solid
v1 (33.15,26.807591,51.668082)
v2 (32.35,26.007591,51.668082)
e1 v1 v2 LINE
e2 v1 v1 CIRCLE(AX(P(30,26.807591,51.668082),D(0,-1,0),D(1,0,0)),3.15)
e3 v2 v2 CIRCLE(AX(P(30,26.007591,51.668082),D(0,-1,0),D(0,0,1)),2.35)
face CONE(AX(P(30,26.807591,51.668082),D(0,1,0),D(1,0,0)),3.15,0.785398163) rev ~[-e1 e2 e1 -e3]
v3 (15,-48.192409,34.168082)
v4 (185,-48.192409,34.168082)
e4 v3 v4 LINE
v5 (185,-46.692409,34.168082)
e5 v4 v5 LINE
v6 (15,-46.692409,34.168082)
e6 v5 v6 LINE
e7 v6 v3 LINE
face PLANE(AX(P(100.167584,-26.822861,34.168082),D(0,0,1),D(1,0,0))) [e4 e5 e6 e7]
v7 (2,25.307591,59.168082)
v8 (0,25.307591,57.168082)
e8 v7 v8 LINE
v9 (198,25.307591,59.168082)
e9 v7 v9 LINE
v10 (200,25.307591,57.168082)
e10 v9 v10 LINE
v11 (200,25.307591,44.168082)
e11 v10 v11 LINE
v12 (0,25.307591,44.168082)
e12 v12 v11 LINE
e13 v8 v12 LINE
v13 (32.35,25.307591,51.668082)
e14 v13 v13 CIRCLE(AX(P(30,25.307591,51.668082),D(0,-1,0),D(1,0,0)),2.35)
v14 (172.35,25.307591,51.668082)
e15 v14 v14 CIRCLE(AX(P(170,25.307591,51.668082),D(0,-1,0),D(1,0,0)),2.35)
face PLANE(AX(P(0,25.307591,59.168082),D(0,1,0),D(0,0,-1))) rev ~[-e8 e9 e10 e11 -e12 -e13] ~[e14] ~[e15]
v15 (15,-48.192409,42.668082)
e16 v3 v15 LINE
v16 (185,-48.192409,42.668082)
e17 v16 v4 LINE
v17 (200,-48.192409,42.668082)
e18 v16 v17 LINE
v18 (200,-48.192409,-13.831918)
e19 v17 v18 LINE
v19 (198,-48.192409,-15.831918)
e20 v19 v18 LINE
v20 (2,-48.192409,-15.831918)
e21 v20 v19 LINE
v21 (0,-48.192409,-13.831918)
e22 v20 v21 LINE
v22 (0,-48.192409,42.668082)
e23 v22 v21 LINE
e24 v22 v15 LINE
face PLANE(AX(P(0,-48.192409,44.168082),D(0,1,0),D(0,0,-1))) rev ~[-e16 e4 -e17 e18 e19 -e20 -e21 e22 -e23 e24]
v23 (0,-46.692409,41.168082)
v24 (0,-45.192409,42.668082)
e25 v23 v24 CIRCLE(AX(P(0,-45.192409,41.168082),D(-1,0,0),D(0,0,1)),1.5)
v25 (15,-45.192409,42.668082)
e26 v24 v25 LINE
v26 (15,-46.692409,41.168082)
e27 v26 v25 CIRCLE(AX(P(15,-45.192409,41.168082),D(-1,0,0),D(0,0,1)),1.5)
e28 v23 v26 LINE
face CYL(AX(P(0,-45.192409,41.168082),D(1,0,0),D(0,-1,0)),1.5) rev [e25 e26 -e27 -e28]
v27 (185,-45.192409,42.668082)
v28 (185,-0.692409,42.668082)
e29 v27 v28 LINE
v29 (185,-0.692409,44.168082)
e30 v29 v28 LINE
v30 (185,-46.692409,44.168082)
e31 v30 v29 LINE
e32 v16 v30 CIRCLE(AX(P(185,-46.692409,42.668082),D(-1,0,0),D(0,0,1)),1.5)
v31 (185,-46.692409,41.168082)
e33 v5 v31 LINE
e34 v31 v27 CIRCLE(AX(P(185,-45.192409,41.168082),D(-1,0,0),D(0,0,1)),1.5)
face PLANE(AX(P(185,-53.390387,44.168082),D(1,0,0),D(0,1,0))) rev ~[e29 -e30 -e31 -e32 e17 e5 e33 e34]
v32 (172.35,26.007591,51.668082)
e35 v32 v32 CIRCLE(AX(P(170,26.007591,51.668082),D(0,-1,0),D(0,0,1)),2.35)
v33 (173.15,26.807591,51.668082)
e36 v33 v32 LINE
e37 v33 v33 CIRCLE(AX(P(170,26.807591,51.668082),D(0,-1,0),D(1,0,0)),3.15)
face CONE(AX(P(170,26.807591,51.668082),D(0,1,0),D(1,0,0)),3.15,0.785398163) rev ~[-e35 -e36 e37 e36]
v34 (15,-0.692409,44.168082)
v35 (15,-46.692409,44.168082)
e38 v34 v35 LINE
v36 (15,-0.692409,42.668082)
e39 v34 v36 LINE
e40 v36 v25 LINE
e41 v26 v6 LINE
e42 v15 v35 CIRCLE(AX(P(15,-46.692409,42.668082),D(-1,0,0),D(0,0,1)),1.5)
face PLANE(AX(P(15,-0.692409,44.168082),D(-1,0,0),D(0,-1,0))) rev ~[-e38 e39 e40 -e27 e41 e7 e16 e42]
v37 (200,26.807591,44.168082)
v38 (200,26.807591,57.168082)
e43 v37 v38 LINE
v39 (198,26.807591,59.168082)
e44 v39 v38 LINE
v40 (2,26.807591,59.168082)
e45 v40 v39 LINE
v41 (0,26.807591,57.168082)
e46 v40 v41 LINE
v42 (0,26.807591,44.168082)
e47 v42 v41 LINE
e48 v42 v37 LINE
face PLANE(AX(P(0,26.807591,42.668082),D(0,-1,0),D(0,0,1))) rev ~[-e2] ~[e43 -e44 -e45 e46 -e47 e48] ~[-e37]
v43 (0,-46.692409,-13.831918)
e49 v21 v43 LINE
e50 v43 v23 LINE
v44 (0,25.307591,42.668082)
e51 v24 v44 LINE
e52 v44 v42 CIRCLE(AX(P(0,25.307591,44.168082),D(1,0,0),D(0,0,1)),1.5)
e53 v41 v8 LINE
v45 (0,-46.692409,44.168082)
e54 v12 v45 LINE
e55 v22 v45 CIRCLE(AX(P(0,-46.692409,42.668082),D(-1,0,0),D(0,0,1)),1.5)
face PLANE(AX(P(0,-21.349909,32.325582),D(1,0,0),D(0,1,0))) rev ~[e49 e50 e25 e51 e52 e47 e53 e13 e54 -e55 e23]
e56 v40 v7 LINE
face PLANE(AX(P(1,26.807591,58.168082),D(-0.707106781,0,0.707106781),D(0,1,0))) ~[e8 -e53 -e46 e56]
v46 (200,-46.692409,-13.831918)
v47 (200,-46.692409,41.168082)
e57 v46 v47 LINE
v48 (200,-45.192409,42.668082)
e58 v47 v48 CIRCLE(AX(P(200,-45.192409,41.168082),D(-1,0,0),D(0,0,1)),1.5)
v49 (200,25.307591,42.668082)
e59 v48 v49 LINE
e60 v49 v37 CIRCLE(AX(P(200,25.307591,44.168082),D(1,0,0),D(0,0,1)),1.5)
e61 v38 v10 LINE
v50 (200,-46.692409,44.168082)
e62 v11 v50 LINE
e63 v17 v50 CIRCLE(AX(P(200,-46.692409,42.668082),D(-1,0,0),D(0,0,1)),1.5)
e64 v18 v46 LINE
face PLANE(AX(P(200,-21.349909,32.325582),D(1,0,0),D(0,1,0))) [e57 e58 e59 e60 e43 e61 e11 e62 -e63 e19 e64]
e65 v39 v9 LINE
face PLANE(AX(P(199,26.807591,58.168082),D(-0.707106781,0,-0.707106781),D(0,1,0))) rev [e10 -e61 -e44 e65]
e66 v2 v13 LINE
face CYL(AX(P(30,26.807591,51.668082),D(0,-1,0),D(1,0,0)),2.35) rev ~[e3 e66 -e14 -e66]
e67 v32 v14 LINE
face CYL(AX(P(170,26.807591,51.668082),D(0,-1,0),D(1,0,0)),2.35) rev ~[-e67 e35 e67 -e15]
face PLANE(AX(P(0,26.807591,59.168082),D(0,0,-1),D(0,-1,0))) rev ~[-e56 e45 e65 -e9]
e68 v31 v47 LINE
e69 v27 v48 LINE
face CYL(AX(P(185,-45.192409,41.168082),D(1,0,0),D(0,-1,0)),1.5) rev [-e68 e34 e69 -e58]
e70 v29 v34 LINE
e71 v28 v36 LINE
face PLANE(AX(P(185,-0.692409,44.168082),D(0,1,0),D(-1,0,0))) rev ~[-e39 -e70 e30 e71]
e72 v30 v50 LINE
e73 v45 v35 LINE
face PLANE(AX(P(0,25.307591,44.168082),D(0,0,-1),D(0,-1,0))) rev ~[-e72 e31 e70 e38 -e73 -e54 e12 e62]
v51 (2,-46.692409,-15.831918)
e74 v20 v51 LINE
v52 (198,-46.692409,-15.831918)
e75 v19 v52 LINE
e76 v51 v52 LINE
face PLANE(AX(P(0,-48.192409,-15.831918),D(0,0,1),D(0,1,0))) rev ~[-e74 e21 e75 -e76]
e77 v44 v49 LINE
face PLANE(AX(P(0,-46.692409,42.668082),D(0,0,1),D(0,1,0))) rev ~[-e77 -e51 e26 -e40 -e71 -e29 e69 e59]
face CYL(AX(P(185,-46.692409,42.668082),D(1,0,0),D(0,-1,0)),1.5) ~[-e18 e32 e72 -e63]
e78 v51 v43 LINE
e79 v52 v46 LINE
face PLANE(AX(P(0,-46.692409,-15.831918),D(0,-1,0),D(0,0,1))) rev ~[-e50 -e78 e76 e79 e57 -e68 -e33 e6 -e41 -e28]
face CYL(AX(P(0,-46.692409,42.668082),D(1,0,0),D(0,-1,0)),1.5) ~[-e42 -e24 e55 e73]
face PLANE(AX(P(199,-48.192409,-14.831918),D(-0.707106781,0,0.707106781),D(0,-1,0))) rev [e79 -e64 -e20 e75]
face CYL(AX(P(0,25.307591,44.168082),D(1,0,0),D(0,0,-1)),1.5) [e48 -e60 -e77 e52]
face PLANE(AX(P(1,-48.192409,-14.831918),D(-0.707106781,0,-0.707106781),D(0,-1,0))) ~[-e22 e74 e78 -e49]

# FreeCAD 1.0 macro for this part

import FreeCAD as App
import Part
import Sketcher

V = App.Vector
Q = App.Units.Quantity


def edges_at(feature, points):
    """Names of the edges that pass closest to the given points."""
    edges = feature.Shape.Edges
    near = lambda p: min(range(len(edges)), key=lambda i: edges[i].distToShape(Part.Vertex(*p))[0])
    return sorted({f"Edge{near(p) + 1}" for p in points})

doc = App.newDocument("Part")
body = doc.addObject("PartDesign::Body", "Body")

# Sketch on YZ plane
sketch1 = body.newObject("Sketcher::SketchObject", "Sketch")
sketch1.AttachmentSupport = (doc.getObject("YZ_Plane"), [""])
sketch1.MapMode = "FlatFace"
sketch1.addGeometry(Part.LineSegment(V(25.3, 44.2, 0), V(-48.2, 44.2, 0)), False)
sketch1.addGeometry(Part.LineSegment(V(-48.2, 44.2, 0), V(-48.2, -15.8, 0)), False)
sketch1.addGeometry(Part.LineSegment(V(-48.2, -15.8, 0), V(-46.7, -15.8, 0)), False)
sketch1.addGeometry(Part.LineSegment(V(-46.7, -15.8, 0), V(-46.7, 42.7, 0)), False)
sketch1.addGeometry(Part.LineSegment(V(-46.7, 42.7, 0), V(26.8, 42.7, 0)), False)
sketch1.addGeometry(Part.LineSegment(V(26.8, 42.7, 0), V(26.8, 59.2, 0)), False)
sketch1.addGeometry(Part.LineSegment(V(26.8, 59.2, 0), V(25.3, 59.2, 0)), False)
sketch1.addGeometry(Part.LineSegment(V(25.3, 59.2, 0), V(25.3, 44.2, 0)), False)
sketch1.addConstraint(Sketcher.Constraint("Coincident", 0, 2, 1, 1))
sketch1.addConstraint(Sketcher.Constraint("Coincident", 1, 2, 2, 1))
sketch1.addConstraint(Sketcher.Constraint("Coincident", 2, 2, 3, 1))
sketch1.addConstraint(Sketcher.Constraint("Coincident", 3, 2, 4, 1))
sketch1.addConstraint(Sketcher.Constraint("Coincident", 4, 2, 5, 1))
sketch1.addConstraint(Sketcher.Constraint("Coincident", 5, 2, 6, 1))
sketch1.addConstraint(Sketcher.Constraint("Coincident", 6, 2, 7, 1))
sketch1.addConstraint(Sketcher.Constraint("Coincident", 7, 2, 0, 1))
sketch1.addConstraint(Sketcher.Constraint("Horizontal", 0))
sketch1.addConstraint(Sketcher.Constraint("Vertical", 1))
sketch1.addConstraint(Sketcher.Constraint("Horizontal", 2))
sketch1.addConstraint(Sketcher.Constraint("Vertical", 3))
sketch1.addConstraint(Sketcher.Constraint("Horizontal", 4))
sketch1.addConstraint(Sketcher.Constraint("Vertical", 5))
sketch1.addConstraint(Sketcher.Constraint("Horizontal", 6))
sketch1.addConstraint(Sketcher.Constraint("Vertical", 7))
sketch1.addConstraint(Sketcher.Constraint("Equal", 0, 4))
sketch1.addConstraint(Sketcher.Constraint("DistanceY", 1, 2, 1, 1, Q("60 mm")))
sketch1.addConstraint(Sketcher.Constraint("DistanceY", 7, 2, 7, 1, Q("15 mm")))
sketch1.addConstraint(Sketcher.Constraint("DistanceX", 0, 2, 0, 1, Q("73.5 mm")))
sketch1.addConstraint(Sketcher.Constraint("DistanceX", 2, 1, 2, 2, Q("1.5 mm")))
sketch1.addConstraint(Sketcher.Constraint("DistanceY", 3, 1, 3, 2, Q("58.5 mm")))
sketch1.addConstraint(Sketcher.Constraint("DistanceX", 0, 2, -1, 1, Q("48.192409 mm")))
sketch1.addConstraint(Sketcher.Constraint("DistanceY", -1, 1, 0, 2, Q("44.168082 mm")))
pad1 = body.newObject("PartDesign::Pad", "Pad")
pad1.Profile = sketch1
pad1.Length = 200
doc.recompute()

chamfer = body.newObject("PartDesign::Chamfer", "Chamfer")
chamfer.Base = (pad1, edges_at(pad1, [
    (200, 26.058, 59.168),
    (0, 26.058, 59.168),
    (0, -47.442, -15.832),
    (200, -47.442, -15.832),
]))
chamfer.Size = 2

# Sketch on XZ plane
sketch2 = body.newObject("Sketcher::SketchObject", "Sketch001")
sketch2.AttachmentSupport = (doc.getObject("XZ_Plane"), [""])
sketch2.MapMode = "FlatFace"
sketch2.AttachmentOffset = App.Placement(V(0, 0, -26.807591), App.Rotation())
sketch2.addGeometry(Part.Circle(V(170, 51.7, 0), V(0, 0, 1), 2.4), False)
sketch2.addGeometry(Part.Circle(V(30, 51.7, 0), V(0, 0, 1), 2.4), False)
sketch2.addConstraint(Sketcher.Constraint("Equal", 0, 1))
sketch2.addConstraint(Sketcher.Constraint("Horizontal", 0, 3, 1, 3))
sketch2.addConstraint(Sketcher.Constraint("Diameter", 0, Q("4.7 mm")))
sketch2.addConstraint(Sketcher.Constraint("DistanceX", -1, 1, 0, 3, Q("170 mm")))
sketch2.addConstraint(Sketcher.Constraint("DistanceX", -1, 1, 1, 3, Q("30 mm")))
sketch2.addConstraint(Sketcher.Constraint("DistanceY", -1, 1, 0, 3, Q("51.668082 mm")))
doc.recompute()
hole = body.newObject("PartDesign::Hole", "Hole")
hole.Profile = sketch2
hole.ThreadType = "None"
hole.Diameter = 4.7
hole.DepthType = "ThroughAll"
hole.HoleCutType = "Countersink"
hole.HoleCutDiameter = 6.3
hole.HoleCutCountersinkAngle = 90
hole.Reversed = True

# Sketch on XY plane
sketch3 = body.newObject("Sketcher::SketchObject", "Sketch002")
sketch3.AttachmentSupport = (doc.getObject("XY_Plane"), [""])
sketch3.MapMode = "FlatFace"
sketch3.AttachmentOffset = App.Placement(V(0, 0, 44.168082), App.Rotation())
sketch3.addGeometry(Part.LineSegment(V(185, -53, 0), V(185, -1, 0)), False)
sketch3.addGeometry(Part.LineSegment(V(185, -1, 0), V(15, -1, 0)), False)
sketch3.addGeometry(Part.LineSegment(V(15, -1, 0), V(15, -53, 0)), False)
sketch3.addGeometry(Part.LineSegment(V(15, -53, 0), V(185, -53, 0)), False)
sketch3.addConstraint(Sketcher.Constraint("Coincident", 0, 2, 1, 1))
sketch3.addConstraint(Sketcher.Constraint("Coincident", 1, 2, 2, 1))
sketch3.addConstraint(Sketcher.Constraint("Coincident", 2, 2, 3, 1))
sketch3.addConstraint(Sketcher.Constraint("Coincident", 3, 2, 0, 1))
sketch3.addConstraint(Sketcher.Constraint("Vertical", 0))
sketch3.addConstraint(Sketcher.Constraint("Horizontal", 1))
sketch3.addConstraint(Sketcher.Constraint("Vertical", 2))
sketch3.addConstraint(Sketcher.Constraint("DistanceX", 1, 2, 1, 1, Q("170 mm")))
sketch3.addConstraint(Sketcher.Constraint("DistanceX", -1, 1, 0, 2, Q("185 mm")))
sketch3.addConstraint(Sketcher.Constraint("DistanceY", 2, 2, 2, 1, Q("51.82157 mm")))
sketch3.addConstraint(Sketcher.Constraint("Distance", 3, Q("170.002259 mm")))
sketch3.addConstraint(Sketcher.Constraint("DistanceY", 0, 2, -1, 1, Q("0.692409 mm")))
pocket1 = body.newObject("PartDesign::Pocket", "Pocket")
pocket1.Profile = sketch3
pocket1.Length = 10
doc.recompute()

fillet = body.newObject("PartDesign::Fillet", "Fillet")
fillet.Base = (pocket1, edges_at(pocket1, [
    (7.5, -48.192, 44.168),
    (192.5, -48.192, 44.168),
    (100, 26.808, 42.668),
    (192.5, -46.692, 42.668),
    (7.5, -46.692, 42.668),
]))
fillet.Radius = 1.5

doc.recompute()
